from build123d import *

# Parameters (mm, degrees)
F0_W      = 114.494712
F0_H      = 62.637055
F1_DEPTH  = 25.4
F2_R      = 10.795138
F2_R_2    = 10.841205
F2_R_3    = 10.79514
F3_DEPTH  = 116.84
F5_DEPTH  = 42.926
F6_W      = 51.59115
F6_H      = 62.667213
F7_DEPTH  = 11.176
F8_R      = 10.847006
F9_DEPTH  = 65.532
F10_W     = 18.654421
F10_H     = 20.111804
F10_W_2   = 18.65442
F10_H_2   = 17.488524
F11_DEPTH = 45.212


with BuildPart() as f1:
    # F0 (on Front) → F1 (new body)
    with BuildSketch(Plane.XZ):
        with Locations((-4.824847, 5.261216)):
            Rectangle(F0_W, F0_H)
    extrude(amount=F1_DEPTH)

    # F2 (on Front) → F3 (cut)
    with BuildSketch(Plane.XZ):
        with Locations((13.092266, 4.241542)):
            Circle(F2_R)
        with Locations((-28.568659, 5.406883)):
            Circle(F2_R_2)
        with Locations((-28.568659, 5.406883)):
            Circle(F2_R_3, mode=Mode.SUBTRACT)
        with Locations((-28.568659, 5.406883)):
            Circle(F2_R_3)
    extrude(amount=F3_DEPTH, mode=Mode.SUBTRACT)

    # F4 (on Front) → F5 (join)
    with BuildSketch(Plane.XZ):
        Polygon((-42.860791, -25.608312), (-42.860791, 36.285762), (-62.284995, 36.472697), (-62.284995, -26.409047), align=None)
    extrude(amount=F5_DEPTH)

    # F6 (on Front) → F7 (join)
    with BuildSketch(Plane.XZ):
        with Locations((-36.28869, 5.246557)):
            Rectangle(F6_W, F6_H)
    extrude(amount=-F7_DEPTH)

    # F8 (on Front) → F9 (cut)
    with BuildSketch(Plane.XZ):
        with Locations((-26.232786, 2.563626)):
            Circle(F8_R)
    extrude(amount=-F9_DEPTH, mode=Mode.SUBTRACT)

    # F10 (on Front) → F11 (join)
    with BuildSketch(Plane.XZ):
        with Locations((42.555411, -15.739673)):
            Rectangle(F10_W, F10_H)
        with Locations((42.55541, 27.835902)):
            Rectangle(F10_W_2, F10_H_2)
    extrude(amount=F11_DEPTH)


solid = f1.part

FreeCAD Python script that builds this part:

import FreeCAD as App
import Part
import Sketcher

V = App.Vector
Q = App.Units.Quantity

doc = App.newDocument("Part")
body = doc.addObject("PartDesign::Body", "Body")

sketch1 = body.newObject("Sketcher::SketchObject", "Sketch")
sketch1.AttachmentSupport = (doc.getObject("XZ_Plane"), [""])
sketch1.MapMode = "FlatFace"
sketch1.addGeometry([
    Part.LineSegment(V(-62.072203, 36.579743, 0), V(-62.072203, -26.057312, 0)),
    Part.LineSegment(V(-62.072203, -26.057312, 0), V(52.422509, -26.057312, 0)),
    Part.LineSegment(V(52.422509, -26.057312, 0), V(52.422509, 36.579743, 0)),
    Part.LineSegment(V(52.422509, 36.579743, 0), V(-62.072203, 36.579743, 0)),
], False)
sketch1.addConstraint([
    Sketcher.Constraint("Coincident", 0, 2, 1, 1),
    Sketcher.Constraint("Coincident", 1, 2, 2, 1),
    Sketcher.Constraint("Coincident", 2, 2, 3, 1),
    Sketcher.Constraint("Coincident", 3, 2, 0, 1),
    Sketcher.Constraint("Vertical", 0),
    Sketcher.Constraint("Horizontal", 1),
    Sketcher.Constraint("Vertical", 2),
    Sketcher.Constraint("Horizontal", 3),
    Sketcher.Constraint("DistanceX", 1, 1, 1, 2, 114.494712),
    Sketcher.Constraint("DistanceY", 0, 2, 0, 1, 62.637055),
    Sketcher.Constraint("DistanceY", 0, 2, -1, 1, 26.057312),
    Sketcher.Constraint("DistanceX", -1, 1, 1, 2, 52.422509),
])
pad1 = body.newObject("PartDesign::Pad", "Pad")
pad1.Profile = sketch1
pad1.Length = Q("1 in")

sketch2 = body.newObject("Sketcher::SketchObject", "Sketch001")
sketch2.AttachmentSupport = (doc.getObject("XZ_Plane"), [""])
sketch2.MapMode = "FlatFace"
sketch2.addGeometry([
    Part.Circle(V(13.092266, 4.241542, 0), V(0, 0, 1), 10.795138),
    Part.Circle(V(-28.568659, 5.406883, 0), V(0, 0, 1), 10.841205),
], False)
sketch2.addConstraint([
    Sketcher.Constraint("Diameter", 1, 21.68241),
    Sketcher.Constraint("Diameter", 0, 21.590276),
    Sketcher.Constraint("DistanceX", 1, 3, -1, 1, 28.568659),
    Sketcher.Constraint("DistanceY", 0, 3, 1, 3, 1.165341),
    Sketcher.Constraint("DistanceX", -1, 1, 0, 3, 13.092266),
    Sketcher.Constraint("DistanceY", -1, 1, 0, 3, 4.241542),
])
pocket1 = body.newObject("PartDesign::Pocket", "Pocket")
pocket1.Profile = sketch2
pocket1.Length = Q("4.6 in")
pocket1.Reversed = True

sketch3 = body.newObject("Sketcher::SketchObject", "Sketch002")
sketch3.AttachmentSupport = (doc.getObject("XZ_Plane"), [""])
sketch3.MapMode = "FlatFace"
sketch3.addGeometry([
    Part.LineSegment(V(-42.860791, -25.608312, 0), V(-42.860791, 36.285762, 0)),
    Part.LineSegment(V(-42.860791, 36.285762, 0), V(-62.284995, 36.472697, 0)),
    Part.LineSegment(V(-62.284995, 36.472697, 0), V(-62.284995, -26.409047, 0)),
    Part.LineSegment(V(-62.284995, -26.409047, 0), V(-42.860791, -25.608312, 0)),
], False)
sketch3.addConstraint([
    Sketcher.Constraint("Coincident", 0, 2, 1, 1),
    Sketcher.Constraint("Coincident", 1, 2, 2, 1),
    Sketcher.Constraint("Coincident", 2, 2, 3, 1),
    Sketcher.Constraint("Coincident", 3, 2, 0, 1),
    Sketcher.Constraint("Vertical", 0),
    Sketcher.Constraint("Vertical", 2),
    Sketcher.Constraint("Distance", 3, 19.440702),
    Sketcher.Constraint("DistanceY", 0, 1, 0, 2, 61.894074),
    Sketcher.Constraint("DistanceY", 2, 2, 2, 1, 62.881744),
    Sketcher.Constraint("DistanceX", 0, 2, -1, 1, 42.860791),
    Sketcher.Constraint("DistanceY", -1, 1, 0, 2, 36.285762),
    Sketcher.Constraint("DistanceY", 2, 2, 0, 2, 62.694809),
])
pad2 = body.newObject("PartDesign::Pad", "Pad001")
pad2.Profile = sketch3
pad2.Length = Q("1.69 in")

sketch4 = body.newObject("Sketcher::SketchObject", "Sketch003")
sketch4.AttachmentSupport = (doc.getObject("XZ_Plane"), [""])
sketch4.MapMode = "FlatFace"
sketch4.addGeometry([
    Part.LineSegment(V(-62.084265, 36.580163, 0), V(-62.084265, -26.087049, 0)),
    Part.LineSegment(V(-62.084265, -26.087049, 0), V(-10.493115, -26.087049, 0)),
    Part.LineSegment(V(-10.493115, -26.087049, 0), V(-10.493115, 36.580163, 0)),
    Part.LineSegment(V(-10.493115, 36.580163, 0), V(-62.084265, 36.580163, 0)),
], False)
sketch4.addConstraint([
    Sketcher.Constraint("Coincident", 0, 2, 1, 1),
    Sketcher.Constraint("Coincident", 1, 2, 2, 1),
    Sketcher.Constraint("Coincident", 2, 2, 3, 1),
    Sketcher.Constraint("Coincident", 3, 2, 0, 1),
    Sketcher.Constraint("Vertical", 0),
    Sketcher.Constraint("Horizontal", 1),
    Sketcher.Constraint("Vertical", 2),
    Sketcher.Constraint("Horizontal", 3),
    Sketcher.Constraint("DistanceX", 1, 1, 1, 2, 51.59115),
    Sketcher.Constraint("DistanceY", 0, 2, 0, 1, 62.667213),
    Sketcher.Constraint("DistanceY", 0, 2, -1, 1, 26.087049),
    Sketcher.Constraint("DistanceX", 0, 2, -1, 1, 62.084265),
])
pad3 = body.newObject("PartDesign::Pad", "Pad002")
pad3.Profile = sketch4
pad3.Length = Q("0.44 in")
pad3.Reversed = True

sketch5 = body.newObject("Sketcher::SketchObject", "Sketch004")
sketch5.AttachmentSupport = (doc.getObject("XZ_Plane"), [""])
sketch5.MapMode = "FlatFace"
sketch5.addGeometry(Part.Circle(V(-26.232786, 2.563626, 0), V(0, 0, 1), 10.847006), False)
sketch5.addConstraint([
    Sketcher.Constraint("Diameter", 0, 21.694012),
    Sketcher.Constraint("DistanceX", 0, 3, -1, 1, 26.232786),
    Sketcher.Constraint("DistanceY", -1, 1, 0, 3, 2.563626),
])
pocket2 = body.newObject("PartDesign::Pocket", "Pocket001")
pocket2.Profile = sketch5
pocket2.Length = Q("2.58 in")

sketch6 = body.newObject("Sketcher::SketchObject", "Sketch005")
sketch6.AttachmentSupport = (doc.getObject("XZ_Plane"), [""])
sketch6.MapMode = "FlatFace"
sketch6.addGeometry([
    Part.LineSegment(V(33.2282, -5.683771, 0), V(33.2282, -25.795575, 0)),
    Part.LineSegment(V(33.2282, -25.795575, 0), V(51.882621, -25.795575, 0)),
    Part.LineSegment(V(51.882621, -25.795575, 0), V(51.882621, -5.683771, 0)),
    Part.LineSegment(V(51.882621, -5.683771, 0), V(33.2282, -5.683771, 0)),
    Part.LineSegment(V(33.2282, 36.580164, 0), V(33.2282, 19.09164, 0)),
    Part.LineSegment(V(33.2282, 19.09164, 0), V(51.88262, 19.09164, 0)),
    Part.LineSegment(V(51.88262, 19.09164, 0), V(51.88262, 36.580164, 0)),
    Part.LineSegment(V(51.88262, 36.580164, 0), V(33.2282, 36.580164, 0)),
], False)
sketch6.addConstraint([
    Sketcher.Constraint("Coincident", 0, 2, 1, 1),
    Sketcher.Constraint("Coincident", 1, 2, 2, 1),
    Sketcher.Constraint("Coincident", 2, 2, 3, 1),
    Sketcher.Constraint("Coincident", 3, 2, 0, 1),
    Sketcher.Constraint("Coincident", 4, 2, 5, 1),
    Sketcher.Constraint("Coincident", 5, 2, 6, 1),
    Sketcher.Constraint("Coincident", 6, 2, 7, 1),
    Sketcher.Constraint("Coincident", 7, 2, 4, 1),
    Sketcher.Constraint("Vertical", 0),
    Sketcher.Constraint("Horizontal", 1),
    Sketcher.Constraint("Vertical", 2),
    Sketcher.Constraint("Horizontal", 3),
    Sketcher.Constraint("Vertical", 4),
    Sketcher.Constraint("Horizontal", 5),
    Sketcher.Constraint("Vertical", 6),
    Sketcher.Constraint("Horizontal", 7),
    Sketcher.Constraint("Vertical", 3, 2, 4, 2),
    Sketcher.Constraint("Vertical", 2, 2, 5, 2),
    Sketcher.Constraint("DistanceX", 1, 1, 1, 2, 18.654421),
    Sketcher.Constraint("DistanceX", -1, 1, 0, 2, 33.2282),
    Sketcher.Constraint("DistanceY", 0, 2, 0, 1, 20.111804),
    Sketcher.Constraint("DistanceY", 4, 2, 4, 1, 17.488524),
    Sketcher.Constraint("DistanceY", 2, 2, -1, 1, 5.683771),
    Sketcher.Constraint("DistanceY", -1, 1, 4, 2, 19.09164),
])
pad4 = body.newObject("PartDesign::Pad", "Pad003")
pad4.Profile = sketch6
pad4.Length = Q("1.78 in")

doc.recompute()
